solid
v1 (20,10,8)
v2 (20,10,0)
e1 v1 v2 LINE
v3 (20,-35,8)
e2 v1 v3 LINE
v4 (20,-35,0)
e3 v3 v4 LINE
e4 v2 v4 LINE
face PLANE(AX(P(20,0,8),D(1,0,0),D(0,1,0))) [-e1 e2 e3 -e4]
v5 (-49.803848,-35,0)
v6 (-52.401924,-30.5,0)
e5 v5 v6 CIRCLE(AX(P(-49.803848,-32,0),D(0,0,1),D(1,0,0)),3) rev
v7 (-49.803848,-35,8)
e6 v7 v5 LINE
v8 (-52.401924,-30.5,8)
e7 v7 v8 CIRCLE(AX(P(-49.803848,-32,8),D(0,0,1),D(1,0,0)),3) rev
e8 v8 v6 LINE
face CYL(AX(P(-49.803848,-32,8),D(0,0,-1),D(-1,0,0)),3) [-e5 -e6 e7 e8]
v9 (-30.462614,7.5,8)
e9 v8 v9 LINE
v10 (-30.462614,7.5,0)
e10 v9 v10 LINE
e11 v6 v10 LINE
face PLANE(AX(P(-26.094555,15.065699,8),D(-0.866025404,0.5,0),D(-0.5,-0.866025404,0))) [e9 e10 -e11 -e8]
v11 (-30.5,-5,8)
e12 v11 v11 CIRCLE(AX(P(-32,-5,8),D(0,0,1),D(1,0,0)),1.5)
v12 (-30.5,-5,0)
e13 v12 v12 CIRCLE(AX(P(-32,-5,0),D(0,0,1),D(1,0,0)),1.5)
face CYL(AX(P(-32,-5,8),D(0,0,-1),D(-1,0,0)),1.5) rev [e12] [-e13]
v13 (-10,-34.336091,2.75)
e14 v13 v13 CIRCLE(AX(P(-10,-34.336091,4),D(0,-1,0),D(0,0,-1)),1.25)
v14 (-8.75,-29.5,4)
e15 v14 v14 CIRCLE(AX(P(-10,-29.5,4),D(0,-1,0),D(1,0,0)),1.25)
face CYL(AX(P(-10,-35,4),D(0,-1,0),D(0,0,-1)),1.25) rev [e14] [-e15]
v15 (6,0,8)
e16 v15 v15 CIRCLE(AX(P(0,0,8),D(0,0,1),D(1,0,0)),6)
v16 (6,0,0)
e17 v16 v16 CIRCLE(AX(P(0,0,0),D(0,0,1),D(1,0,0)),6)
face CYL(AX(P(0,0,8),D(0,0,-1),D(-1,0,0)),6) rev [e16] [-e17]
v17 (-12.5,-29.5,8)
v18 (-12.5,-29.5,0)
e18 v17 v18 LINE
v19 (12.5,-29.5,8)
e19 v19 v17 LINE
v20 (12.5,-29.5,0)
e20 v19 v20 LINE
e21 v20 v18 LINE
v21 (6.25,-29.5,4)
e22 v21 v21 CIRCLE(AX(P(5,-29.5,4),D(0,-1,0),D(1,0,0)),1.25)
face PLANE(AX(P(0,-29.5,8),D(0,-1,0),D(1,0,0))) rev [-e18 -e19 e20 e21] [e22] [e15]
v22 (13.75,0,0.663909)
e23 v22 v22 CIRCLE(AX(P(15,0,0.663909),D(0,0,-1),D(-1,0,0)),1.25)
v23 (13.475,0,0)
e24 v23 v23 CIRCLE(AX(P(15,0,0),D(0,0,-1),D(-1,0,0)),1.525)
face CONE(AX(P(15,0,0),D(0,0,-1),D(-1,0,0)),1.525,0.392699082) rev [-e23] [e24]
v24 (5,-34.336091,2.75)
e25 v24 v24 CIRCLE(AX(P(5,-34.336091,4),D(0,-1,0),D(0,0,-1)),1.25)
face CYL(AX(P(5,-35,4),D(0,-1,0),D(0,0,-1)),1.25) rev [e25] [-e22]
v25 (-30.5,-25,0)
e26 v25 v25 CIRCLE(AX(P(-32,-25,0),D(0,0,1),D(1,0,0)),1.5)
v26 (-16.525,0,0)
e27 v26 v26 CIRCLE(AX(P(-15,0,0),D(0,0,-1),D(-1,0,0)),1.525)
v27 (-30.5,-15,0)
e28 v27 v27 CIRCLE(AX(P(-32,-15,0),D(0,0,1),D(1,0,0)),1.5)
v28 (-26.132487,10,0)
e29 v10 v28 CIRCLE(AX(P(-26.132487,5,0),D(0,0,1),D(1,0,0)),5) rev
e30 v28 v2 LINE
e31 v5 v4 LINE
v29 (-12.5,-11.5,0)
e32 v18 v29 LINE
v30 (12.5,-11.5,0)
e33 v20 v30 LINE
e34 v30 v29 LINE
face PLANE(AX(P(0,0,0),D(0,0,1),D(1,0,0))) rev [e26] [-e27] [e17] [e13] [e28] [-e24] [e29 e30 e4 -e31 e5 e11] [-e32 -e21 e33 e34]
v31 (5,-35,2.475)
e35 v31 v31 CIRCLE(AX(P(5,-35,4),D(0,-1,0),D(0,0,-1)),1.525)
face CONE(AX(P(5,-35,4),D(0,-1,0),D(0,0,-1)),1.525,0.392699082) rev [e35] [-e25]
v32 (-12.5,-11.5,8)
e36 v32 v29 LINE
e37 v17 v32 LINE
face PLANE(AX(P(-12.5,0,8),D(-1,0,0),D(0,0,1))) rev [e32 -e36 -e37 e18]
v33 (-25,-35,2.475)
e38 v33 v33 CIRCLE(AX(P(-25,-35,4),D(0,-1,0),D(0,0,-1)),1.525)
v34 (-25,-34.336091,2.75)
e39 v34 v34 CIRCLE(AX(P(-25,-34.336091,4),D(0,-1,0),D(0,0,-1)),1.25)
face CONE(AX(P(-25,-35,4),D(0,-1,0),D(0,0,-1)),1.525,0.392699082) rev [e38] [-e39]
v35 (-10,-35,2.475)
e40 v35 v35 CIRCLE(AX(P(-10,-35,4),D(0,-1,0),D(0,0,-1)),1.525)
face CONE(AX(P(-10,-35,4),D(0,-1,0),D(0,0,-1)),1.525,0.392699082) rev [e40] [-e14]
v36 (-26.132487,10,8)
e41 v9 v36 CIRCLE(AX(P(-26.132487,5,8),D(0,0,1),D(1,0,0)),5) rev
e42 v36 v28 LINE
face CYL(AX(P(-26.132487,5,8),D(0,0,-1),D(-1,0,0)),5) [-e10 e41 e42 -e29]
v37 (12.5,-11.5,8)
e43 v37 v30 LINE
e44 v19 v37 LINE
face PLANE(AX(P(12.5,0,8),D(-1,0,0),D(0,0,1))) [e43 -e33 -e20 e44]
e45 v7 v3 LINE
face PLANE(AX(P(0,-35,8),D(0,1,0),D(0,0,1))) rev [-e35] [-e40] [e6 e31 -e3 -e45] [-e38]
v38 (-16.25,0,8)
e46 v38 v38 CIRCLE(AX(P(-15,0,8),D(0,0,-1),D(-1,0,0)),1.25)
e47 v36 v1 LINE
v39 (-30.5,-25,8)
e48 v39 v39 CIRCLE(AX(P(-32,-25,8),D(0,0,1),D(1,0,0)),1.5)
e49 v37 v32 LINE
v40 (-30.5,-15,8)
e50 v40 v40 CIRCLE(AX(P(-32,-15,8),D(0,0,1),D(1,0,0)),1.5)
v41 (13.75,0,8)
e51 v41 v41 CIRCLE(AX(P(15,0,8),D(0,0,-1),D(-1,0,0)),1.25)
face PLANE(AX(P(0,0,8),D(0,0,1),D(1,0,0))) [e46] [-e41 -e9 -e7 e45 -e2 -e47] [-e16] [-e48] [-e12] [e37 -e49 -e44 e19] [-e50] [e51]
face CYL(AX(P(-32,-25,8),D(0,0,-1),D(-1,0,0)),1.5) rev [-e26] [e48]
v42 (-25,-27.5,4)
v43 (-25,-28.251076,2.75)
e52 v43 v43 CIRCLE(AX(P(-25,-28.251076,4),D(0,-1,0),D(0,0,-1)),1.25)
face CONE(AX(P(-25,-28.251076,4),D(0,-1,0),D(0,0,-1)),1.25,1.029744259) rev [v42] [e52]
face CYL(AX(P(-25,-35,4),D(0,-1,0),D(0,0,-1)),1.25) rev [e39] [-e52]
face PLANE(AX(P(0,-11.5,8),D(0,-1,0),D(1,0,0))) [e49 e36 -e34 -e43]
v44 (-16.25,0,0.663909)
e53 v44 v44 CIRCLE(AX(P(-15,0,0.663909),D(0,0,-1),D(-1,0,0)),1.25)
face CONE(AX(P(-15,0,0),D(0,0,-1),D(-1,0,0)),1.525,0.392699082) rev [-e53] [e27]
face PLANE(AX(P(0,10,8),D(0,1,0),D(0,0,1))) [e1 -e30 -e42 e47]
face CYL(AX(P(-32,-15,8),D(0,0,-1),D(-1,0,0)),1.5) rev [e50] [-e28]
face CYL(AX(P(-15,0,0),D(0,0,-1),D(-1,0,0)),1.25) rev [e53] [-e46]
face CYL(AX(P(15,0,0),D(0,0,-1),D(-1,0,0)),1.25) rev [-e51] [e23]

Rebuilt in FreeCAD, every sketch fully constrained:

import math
import FreeCAD as App
import Part
import Sketcher
Q = App.Units.Quantity


def add_polygon(sketch, points):
    """Adds a closed chain of lines whose ends are joined by coincident constraints."""
    first, n = sketch.GeometryCount, len(points)
    for a, b in zip(points, points[1:] + points[:1]):
        sketch.addGeometry(Part.LineSegment(App.Vector(*a, 0), App.Vector(*b, 0)), False)
    for i in range(n):
        sketch.addConstraint(Sketcher.Constraint("Coincident", first + i, 2, first + (i + 1) % n, 1))

doc = App.newDocument("Part")
body = doc.addObject("PartDesign::Body", "Body")

sketch1 = doc.addObject("Sketcher::SketchObject", "Sketch")
body.addObject(sketch1)
sketch1.AttachmentSupport = (doc.XY_Plane, [""])
sketch1.MapMode = "FlatFace"
sketch1.addGeometry(Part.LineSegment(App.Vector(-30.5, 7.5, 0), App.Vector(-52.4, -30.5, 0)), False)
sketch1.addGeometry(Part.ArcOfCircle(Part.Circle(App.Vector(-49.8, -32, 0), App.Vector(0, 0, 1), 3), math.radians(150), math.radians(270)), False)
sketch1.addGeometry(Part.LineSegment(App.Vector(-49.8, -35, 0), App.Vector(20, -35, 0)), False)
sketch1.addGeometry(Part.LineSegment(App.Vector(20, -35, 0), App.Vector(20, 10, 0)), False)
sketch1.addGeometry(Part.LineSegment(App.Vector(20, 10, 0), App.Vector(-26.1, 10, 0)), False)
sketch1.addGeometry(Part.ArcOfCircle(Part.Circle(App.Vector(-26.1, 5, 0), App.Vector(0, 0, 1), 5), math.radians(90), math.radians(150)), False)
add_polygon(sketch1, [(-12.5, -29.5), (-12.5, -11.5), (12.5, -11.5), (12.5, -29.5)])
sketch1.addGeometry(Part.Circle(App.Vector(-32, -25, 0), App.Vector(0, 0, 1), 1.5), False)
sketch1.addGeometry(Part.Circle(App.Vector(-32, -15, 0), App.Vector(0, 0, 1), 1.5), False)
sketch1.addGeometry(Part.Circle(App.Vector(0, 0, 0), App.Vector(0, 0, 1), 6), False)
sketch1.addGeometry(Part.Circle(App.Vector(-32, -5, 0), App.Vector(0, 0, 1), 1.5), False)
sketch1.addConstraint(Sketcher.Constraint("Tangent", 0, 2, 1, 1))
sketch1.addConstraint(Sketcher.Constraint("Tangent", 1, 2, 2, 1))
sketch1.addConstraint(Sketcher.Constraint("Coincident", 2, 2, 3, 1))
sketch1.addConstraint(Sketcher.Constraint("Coincident", 3, 2, 4, 1))
sketch1.addConstraint(Sketcher.Constraint("Tangent", 4, 2, 5, 1))
sketch1.addConstraint(Sketcher.Constraint("Tangent", 5, 2, 0, 1))
sketch1.addConstraint(Sketcher.Constraint("Horizontal", 2))
sketch1.addConstraint(Sketcher.Constraint("Vertical", 3))
sketch1.addConstraint(Sketcher.Constraint("Horizontal", 4))
sketch1.addConstraint(Sketcher.Constraint("Vertical", 6))
sketch1.addConstraint(Sketcher.Constraint("Horizontal", 7))
sketch1.addConstraint(Sketcher.Constraint("Vertical", 8))
sketch1.addConstraint(Sketcher.Constraint("Horizontal", 9))
sketch1.addConstraint(Sketcher.Constraint("Coincident", 12, 3, -1, 1))
sketch1.addConstraint(Sketcher.Constraint("Equal", 10, 11))
sketch1.addConstraint(Sketcher.Constraint("Equal", 11, 13))
sketch1.addConstraint(Sketcher.Constraint("Vertical", 10, 3, 11, 3))
sketch1.addConstraint(Sketcher.Constraint("Vertical", 11, 3, 13, 3))
sketch1.addConstraint(Sketcher.Constraint("Diameter", 10, Q("3 mm")))
sketch1.addConstraint(Sketcher.Constraint("Diameter", 12, Q("12 mm")))
sketch1.addConstraint(Sketcher.Constraint("Radius", 1, Q("3 mm")))
sketch1.addConstraint(Sketcher.Constraint("Radius", 5, Q("5 mm")))
sketch1.addConstraint(Sketcher.Constraint("DistanceX", 7, 1, 7, 2, Q("25 mm")))
sketch1.addConstraint(Sketcher.Constraint("DistanceY", 3, 1, 3, 2, Q("45 mm")))
sketch1.addConstraint(Sketcher.Constraint("DistanceY", 6, 1, 6, 2, Q("18 mm")))
sketch1.addConstraint(Sketcher.Constraint("Angle", 0, Q("-120 deg")))
sketch1.addConstraint(Sketcher.Constraint("DistanceY", 1, 3, -1, 1, Q("32 mm")))
sketch1.addConstraint(Sketcher.Constraint("DistanceX", 10, 3, -1, 1, Q("32 mm")))
sketch1.addConstraint(Sketcher.Constraint("DistanceY", 10, 3, -1, 1, Q("25 mm")))
sketch1.addConstraint(Sketcher.Constraint("DistanceY", 11, 3, -1, 1, Q("15 mm")))
sketch1.addConstraint(Sketcher.Constraint("DistanceY", 13, 3, -1, 1, Q("5 mm")))
sketch1.addConstraint(Sketcher.Constraint("DistanceX", -1, 1, 2, 2, Q("20 mm")))
sketch1.addConstraint(Sketcher.Constraint("DistanceX", 6, 2, -1, 1, Q("12.5 mm")))
sketch1.addConstraint(Sketcher.Constraint("DistanceY", 6, 2, -1, 1, Q("11.5 mm")))
sketch1.addConstraint(Sketcher.Constraint("DistanceX", 2, 1, 2, 2, Q("69.803848 mm")))
pad1 = doc.addObject("PartDesign::Pad", "Pad")
body.addObject(pad1)
pad1.Profile = sketch1
pad1.Length = 8

sketch2 = doc.addObject("Sketcher::SketchObject", "Sketch001")
body.addObject(sketch2)
sketch2.AttachmentSupport = (doc.XZ_Plane, [""])
sketch2.MapMode = "FlatFace"
sketch2.AttachmentOffset = App.Placement(App.Vector(0, 0, 35), App.Rotation())
sketch2.addGeometry(Part.Circle(App.Vector(-10, 4, 0), App.Vector(0, 0, 1), 1.2), False)
sketch2.addGeometry(Part.Circle(App.Vector(5, 4, 0), App.Vector(0, 0, 1), 1.2), False)
sketch2.addGeometry(Part.Circle(App.Vector(-25, 4, 0), App.Vector(0, 0, 1), 1.2), False)
sketch2.addConstraint(Sketcher.Constraint("Equal", 0, 1))
sketch2.addConstraint(Sketcher.Constraint("Equal", 1, 2))
sketch2.addConstraint(Sketcher.Constraint("Horizontal", 0, 3, 1, 3))
sketch2.addConstraint(Sketcher.Constraint("Horizontal", 1, 3, 2, 3))
sketch2.addConstraint(Sketcher.Constraint("Diameter", 0, Q("2.5 mm")))
sketch2.addConstraint(Sketcher.Constraint("DistanceX", 0, 3, -1, 1, Q("10 mm")))
sketch2.addConstraint(Sketcher.Constraint("DistanceY", -1, 1, 0, 3, Q("4 mm")))
sketch2.addConstraint(Sketcher.Constraint("DistanceX", -1, 1, 1, 3, Q("5 mm")))
sketch2.addConstraint(Sketcher.Constraint("DistanceX", 2, 3, -1, 1, Q("25 mm")))
doc.recompute()
hole = doc.addObject("PartDesign::Hole", "Hole")
body.addObject(hole)
hole.Profile = sketch2
hole.ThreadType = "None"
hole.Diameter = 2.5
hole.DepthType = "Dimension"
hole.Depth = 6.748924
hole.DrillPoint = "Angled"
hole.DrillPointAngle = 118
hole.HoleCutType = "Countersink"
hole.HoleCutDiameter = 3.05
hole.HoleCutCountersinkAngle = 45

sketch3 = doc.addObject("Sketcher::SketchObject", "Sketch002")
body.addObject(sketch3)
sketch3.AttachmentSupport = (doc.XY_Plane, [""])
sketch3.MapMode = "FlatFace"
sketch3.addGeometry(Part.Circle(App.Vector(15, 0, 0), App.Vector(0, 0, 1), 1.2), False)
sketch3.addGeometry(Part.Circle(App.Vector(-15, 0, 0), App.Vector(0, 0, 1), 1.2), False)
sketch3.addConstraint(Sketcher.Constraint("Equal", 0, 1))
sketch3.addConstraint(Sketcher.Constraint("Symmetric", 0, 3, 1, 3, -1, 1))
sketch3.addConstraint(Sketcher.Constraint("PointOnObject", 0, 3, -1))
sketch3.addConstraint(Sketcher.Constraint("Diameter", 0, Q("2.5 mm")))
sketch3.addConstraint(Sketcher.Constraint("DistanceX", -1, 1, 0, 3, Q("15 mm")))
doc.recompute()
hole2 = doc.addObject("PartDesign::Hole", "Hole001")
body.addObject(hole2)
hole2.Profile = sketch3
hole2.ThreadType = "None"
hole2.Diameter = 2.5
hole2.DepthType = "ThroughAll"
hole2.HoleCutType = "Countersink"
hole2.HoleCutDiameter = 3.05
hole2.HoleCutCountersinkAngle = 45
hole2.Reversed = True

doc.recompute()
